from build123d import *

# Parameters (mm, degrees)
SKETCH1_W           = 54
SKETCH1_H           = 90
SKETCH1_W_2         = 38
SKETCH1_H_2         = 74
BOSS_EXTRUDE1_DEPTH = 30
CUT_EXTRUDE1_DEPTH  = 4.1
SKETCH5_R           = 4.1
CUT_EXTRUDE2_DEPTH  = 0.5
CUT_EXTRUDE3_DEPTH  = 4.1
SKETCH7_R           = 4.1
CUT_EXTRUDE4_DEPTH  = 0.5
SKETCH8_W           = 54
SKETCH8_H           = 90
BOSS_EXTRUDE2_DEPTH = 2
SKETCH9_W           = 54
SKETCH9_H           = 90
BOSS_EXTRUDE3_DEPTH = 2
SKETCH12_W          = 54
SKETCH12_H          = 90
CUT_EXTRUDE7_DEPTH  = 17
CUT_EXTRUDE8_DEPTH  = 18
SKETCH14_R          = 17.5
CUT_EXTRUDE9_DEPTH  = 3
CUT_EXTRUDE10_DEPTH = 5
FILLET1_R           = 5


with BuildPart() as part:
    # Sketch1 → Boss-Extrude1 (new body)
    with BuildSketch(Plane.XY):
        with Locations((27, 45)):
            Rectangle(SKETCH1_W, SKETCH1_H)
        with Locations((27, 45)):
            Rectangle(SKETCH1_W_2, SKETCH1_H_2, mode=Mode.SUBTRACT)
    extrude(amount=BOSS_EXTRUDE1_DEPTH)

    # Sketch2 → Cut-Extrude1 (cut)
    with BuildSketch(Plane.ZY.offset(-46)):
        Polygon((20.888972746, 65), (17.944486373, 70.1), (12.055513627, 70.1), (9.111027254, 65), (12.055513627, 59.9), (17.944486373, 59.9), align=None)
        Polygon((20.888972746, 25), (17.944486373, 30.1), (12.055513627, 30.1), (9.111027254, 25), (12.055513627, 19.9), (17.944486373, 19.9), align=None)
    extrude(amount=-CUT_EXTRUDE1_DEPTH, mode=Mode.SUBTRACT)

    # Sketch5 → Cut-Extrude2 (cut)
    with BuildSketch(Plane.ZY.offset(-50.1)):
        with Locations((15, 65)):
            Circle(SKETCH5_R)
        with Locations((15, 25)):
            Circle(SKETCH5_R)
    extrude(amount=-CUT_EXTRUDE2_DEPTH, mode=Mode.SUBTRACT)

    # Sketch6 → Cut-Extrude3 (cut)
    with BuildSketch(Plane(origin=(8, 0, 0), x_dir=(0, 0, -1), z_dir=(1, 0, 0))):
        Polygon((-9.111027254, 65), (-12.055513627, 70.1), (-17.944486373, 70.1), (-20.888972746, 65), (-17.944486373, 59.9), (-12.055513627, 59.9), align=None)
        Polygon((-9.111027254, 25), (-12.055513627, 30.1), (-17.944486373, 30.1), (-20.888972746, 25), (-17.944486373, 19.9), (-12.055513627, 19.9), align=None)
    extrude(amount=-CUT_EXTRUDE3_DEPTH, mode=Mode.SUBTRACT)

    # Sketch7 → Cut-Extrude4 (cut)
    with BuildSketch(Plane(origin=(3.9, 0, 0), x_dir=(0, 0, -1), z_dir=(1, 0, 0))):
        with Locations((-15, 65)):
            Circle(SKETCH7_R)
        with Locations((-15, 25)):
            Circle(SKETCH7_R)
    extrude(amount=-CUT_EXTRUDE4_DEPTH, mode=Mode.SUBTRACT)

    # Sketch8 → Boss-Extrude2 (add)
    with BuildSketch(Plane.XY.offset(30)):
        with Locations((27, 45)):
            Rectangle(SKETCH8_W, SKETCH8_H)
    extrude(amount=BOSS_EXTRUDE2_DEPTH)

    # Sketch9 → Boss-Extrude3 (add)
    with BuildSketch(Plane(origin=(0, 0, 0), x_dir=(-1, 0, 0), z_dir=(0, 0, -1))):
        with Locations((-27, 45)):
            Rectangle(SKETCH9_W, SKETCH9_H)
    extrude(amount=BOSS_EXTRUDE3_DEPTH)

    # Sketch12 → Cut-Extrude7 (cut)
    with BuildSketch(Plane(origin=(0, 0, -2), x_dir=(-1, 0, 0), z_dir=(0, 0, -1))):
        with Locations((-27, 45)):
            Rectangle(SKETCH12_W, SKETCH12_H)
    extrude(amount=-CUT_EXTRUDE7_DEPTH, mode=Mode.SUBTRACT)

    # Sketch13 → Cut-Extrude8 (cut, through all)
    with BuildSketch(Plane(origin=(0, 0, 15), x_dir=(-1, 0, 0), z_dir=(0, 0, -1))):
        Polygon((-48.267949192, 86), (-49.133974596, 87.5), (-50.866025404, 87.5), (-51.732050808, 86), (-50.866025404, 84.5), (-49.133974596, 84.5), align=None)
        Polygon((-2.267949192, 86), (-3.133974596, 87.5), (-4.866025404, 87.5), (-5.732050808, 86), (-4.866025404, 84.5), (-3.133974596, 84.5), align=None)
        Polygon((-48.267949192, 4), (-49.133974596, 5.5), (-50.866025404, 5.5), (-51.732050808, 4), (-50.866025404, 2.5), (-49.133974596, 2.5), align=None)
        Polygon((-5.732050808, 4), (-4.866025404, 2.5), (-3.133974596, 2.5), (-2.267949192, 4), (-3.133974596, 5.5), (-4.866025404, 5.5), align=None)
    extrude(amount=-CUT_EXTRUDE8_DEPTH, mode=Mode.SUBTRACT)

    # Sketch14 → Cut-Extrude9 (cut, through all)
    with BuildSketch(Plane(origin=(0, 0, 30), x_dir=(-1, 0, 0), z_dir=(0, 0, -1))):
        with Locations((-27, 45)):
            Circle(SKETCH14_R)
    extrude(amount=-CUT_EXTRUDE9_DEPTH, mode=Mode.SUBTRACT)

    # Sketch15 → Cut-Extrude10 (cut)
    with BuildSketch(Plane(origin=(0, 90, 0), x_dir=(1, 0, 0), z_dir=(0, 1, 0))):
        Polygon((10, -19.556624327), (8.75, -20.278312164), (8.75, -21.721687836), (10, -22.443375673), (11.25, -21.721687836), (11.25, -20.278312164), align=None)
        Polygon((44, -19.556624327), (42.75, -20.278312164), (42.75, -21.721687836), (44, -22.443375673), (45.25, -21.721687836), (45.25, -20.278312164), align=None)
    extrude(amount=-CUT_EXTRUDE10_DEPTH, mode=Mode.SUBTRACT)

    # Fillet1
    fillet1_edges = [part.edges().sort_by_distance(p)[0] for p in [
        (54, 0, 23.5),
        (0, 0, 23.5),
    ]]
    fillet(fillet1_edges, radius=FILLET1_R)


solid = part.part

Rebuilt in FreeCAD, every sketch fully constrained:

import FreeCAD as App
import Part
import Sketcher
from FreeCAD import Vector
Q = App.Units.Quantity


def edges_at(feature, points):
    """Names of the edges that pass closest to the given points."""
    edges = feature.Shape.Edges
    near = lambda p: min(range(len(edges)), key=lambda i: edges[i].distToShape(Part.Vertex(*p))[0])
    return sorted({f"Edge{near(p) + 1}" for p in points})

doc = App.newDocument("Part")
params = doc.addObject("Spreadsheet::Sheet", "Params")
for row, (alias, value) in enumerate([
    ("sketch1_width", "54 mm"),
    ("sketch1_width2", "38 mm"),
    ("sketch1_height", "90 mm"),
    ("sketch1_height2", "74 mm"),
    ("pad1_length", "30 mm"),
    ("pocket1_length", "4.1 mm"),
    ("sketch3_diameter", "8.2 mm"),
    ("pocket2_length", "0.5 mm"),
    ("pocket3_length", "4.1 mm"),
    ("sketch5_diameter", "8.2 mm"),
    ("pocket4_length", "0.5 mm"),
    ("sketch6_width", "54 mm"),
    ("sketch6_height", "90 mm"),
    ("pad2_length", "2 mm"),
    ("sketch7_width", "54 mm"),
    ("sketch7_height", "90 mm"),
    ("pad3_length", "2 mm"),
    ("sketch8_width", "54 mm"),
    ("sketch8_height", "90 mm"),
    ("pocket5_length", "17 mm"),
    ("sketch10_diameter", "35 mm"),
    ("pocket8_length", "5 mm"),
    ("fillet_radius", "5 mm"),
], start=1):
    params.set(f"A{row}", alias)
    params.set(f"B{row}", "=" + value)
    params.setAlias(f"B{row}", alias)

body = doc.addObject("PartDesign::Body", "Body")

# Sketch on XY plane
sketch1 = body.newObject("Sketcher::SketchObject", "Sketch")
sketch1.AttachmentSupport = (doc.getObject("XY_Plane"), [""])
sketch1.MapMode = "FlatFace"
sketch1.addGeometry(Part.LineSegment(Vector(0, 90, 0), Vector(0, 0, 0)), False)
sketch1.addGeometry(Part.LineSegment(Vector(0, 0, 0), Vector(54, 0, 0)), False)
sketch1.addGeometry(Part.LineSegment(Vector(54, 0, 0), Vector(54, 90, 0)), False)
sketch1.addGeometry(Part.LineSegment(Vector(54, 90, 0), Vector(0, 90, 0)), False)
sketch1.addGeometry(Part.LineSegment(Vector(46, 8, 0), Vector(8, 8, 0)), False)
sketch1.addGeometry(Part.LineSegment(Vector(8, 8, 0), Vector(8, 82, 0)), False)
sketch1.addGeometry(Part.LineSegment(Vector(8, 82, 0), Vector(46, 82, 0)), False)
sketch1.addGeometry(Part.LineSegment(Vector(46, 82, 0), Vector(46, 8, 0)), False)
sketch1.addConstraint(Sketcher.Constraint("Coincident", 0, 2, 1, 1))
sketch1.addConstraint(Sketcher.Constraint("Coincident", 1, 2, 2, 1))
sketch1.addConstraint(Sketcher.Constraint("Coincident", 2, 2, 3, 1))
sketch1.addConstraint(Sketcher.Constraint("Coincident", 3, 2, 0, 1))
sketch1.addConstraint(Sketcher.Constraint("Coincident", 4, 2, 5, 1))
sketch1.addConstraint(Sketcher.Constraint("Coincident", 5, 2, 6, 1))
sketch1.addConstraint(Sketcher.Constraint("Coincident", 6, 2, 7, 1))
sketch1.addConstraint(Sketcher.Constraint("Coincident", 7, 2, 4, 1))
sketch1.addConstraint(Sketcher.Constraint("Vertical", 0))
sketch1.addConstraint(Sketcher.Constraint("Horizontal", 1))
sketch1.addConstraint(Sketcher.Constraint("Vertical", 2))
sketch1.addConstraint(Sketcher.Constraint("Horizontal", 3))
sketch1.addConstraint(Sketcher.Constraint("Horizontal", 4))
sketch1.addConstraint(Sketcher.Constraint("Vertical", 5))
sketch1.addConstraint(Sketcher.Constraint("Horizontal", 6))
sketch1.addConstraint(Sketcher.Constraint("Vertical", 7))
sketch1.addConstraint(Sketcher.Constraint("Coincident", 0, 2, -1, 1))
sketch1.addConstraint(Sketcher.Constraint("DistanceX", 1, 1, 1, 2, Q("54 mm")))
sketch1.addConstraint(Sketcher.Constraint("DistanceX", 4, 2, 4, 1, Q("38 mm")))
sketch1.addConstraint(Sketcher.Constraint("DistanceY", 0, 2, 0, 1, Q("90 mm")))
sketch1.addConstraint(Sketcher.Constraint("DistanceY", 5, 1, 5, 2, Q("74 mm")))
sketch1.addConstraint(Sketcher.Constraint("DistanceX", -1, 1, 4, 2, Q("8 mm")))
sketch1.addConstraint(Sketcher.Constraint("DistanceY", -1, 1, 4, 2, Q("8 mm")))
sketch1.setExpression("Constraints[17]", "Params.sketch1_width")
sketch1.setExpression("Constraints[18]", "Params.sketch1_width2")
sketch1.setExpression("Constraints[19]", "Params.sketch1_height")
sketch1.setExpression("Constraints[20]", "Params.sketch1_height2")
pad1 = body.newObject("PartDesign::Pad", "Pad")
pad1.Profile = sketch1
pad1.setExpression("Length", "Params.pad1_length")

# Sketch on YZ plane
sketch2 = body.newObject("Sketcher::SketchObject", "Sketch001")
sketch2.AttachmentSupport = (doc.getObject("YZ_Plane"), [""])
sketch2.MapMode = "FlatFace"
sketch2.AttachmentOffset = App.Placement(Vector(0, 0, 46), App.Rotation())
sketch2.addGeometry(Part.LineSegment(Vector(65, 21, 0), Vector(70, 18, 0)), False)
sketch2.addGeometry(Part.LineSegment(Vector(70, 18, 0), Vector(70, 12, 0)), False)
sketch2.addGeometry(Part.LineSegment(Vector(70, 12, 0), Vector(65, 9, 0)), False)
sketch2.addGeometry(Part.LineSegment(Vector(65, 9, 0), Vector(60, 12, 0)), False)
sketch2.addGeometry(Part.LineSegment(Vector(60, 12, 0), Vector(60, 18, 0)), False)
sketch2.addGeometry(Part.LineSegment(Vector(60, 18, 0), Vector(65, 21, 0)), False)
sketch2.addGeometry(Part.LineSegment(Vector(25, 21, 0), Vector(30, 18, 0)), False)
sketch2.addGeometry(Part.LineSegment(Vector(30, 18, 0), Vector(30, 12, 0)), False)
sketch2.addGeometry(Part.LineSegment(Vector(30, 12, 0), Vector(25, 9, 0)), False)
sketch2.addGeometry(Part.LineSegment(Vector(25, 9, 0), Vector(20, 12, 0)), False)
sketch2.addGeometry(Part.LineSegment(Vector(20, 12, 0), Vector(20, 18, 0)), False)
sketch2.addGeometry(Part.LineSegment(Vector(20, 18, 0), Vector(25, 21, 0)), False)
sketch2.addConstraint(Sketcher.Constraint("Coincident", 0, 2, 1, 1))
sketch2.addConstraint(Sketcher.Constraint("Coincident", 1, 2, 2, 1))
sketch2.addConstraint(Sketcher.Constraint("Coincident", 2, 2, 3, 1))
sketch2.addConstraint(Sketcher.Constraint("Coincident", 3, 2, 4, 1))
sketch2.addConstraint(Sketcher.Constraint("Coincident", 4, 2, 5, 1))
sketch2.addConstraint(Sketcher.Constraint("Coincident", 5, 2, 0, 1))
sketch2.addConstraint(Sketcher.Constraint("Coincident", 6, 2, 7, 1))
sketch2.addConstraint(Sketcher.Constraint("Coincident", 7, 2, 8, 1))
sketch2.addConstraint(Sketcher.Constraint("Coincident", 8, 2, 9, 1))
sketch2.addConstraint(Sketcher.Constraint("Coincident", 9, 2, 10, 1))
sketch2.addConstraint(Sketcher.Constraint("Coincident", 10, 2, 11, 1))
sketch2.addConstraint(Sketcher.Constraint("Coincident", 11, 2, 6, 1))
sketch2.addConstraint(Sketcher.Constraint("Vertical", 1))
sketch2.addConstraint(Sketcher.Constraint("Vertical", 4))
sketch2.addConstraint(Sketcher.Constraint("Vertical", 7))
sketch2.addConstraint(Sketcher.Constraint("Vertical", 10))
sketch2.addConstraint(Sketcher.Constraint("Parallel", 0, 3))
sketch2.addConstraint(Sketcher.Constraint("Parallel", 2, 5))
sketch2.addConstraint(Sketcher.Constraint("Parallel", 3, 6))
sketch2.addConstraint(Sketcher.Constraint("Parallel", 5, 8))
sketch2.addConstraint(Sketcher.Constraint("Parallel", 6, 9))
sketch2.addConstraint(Sketcher.Constraint("Parallel", 8, 11))
sketch2.addConstraint(Sketcher.Constraint("Horizontal", 1, 2, 3, 2))
sketch2.addConstraint(Sketcher.Constraint("Horizontal", 0, 2, 4, 2))
sketch2.addConstraint(Sketcher.Constraint("Horizontal", 4, 2, 6, 2))
sketch2.addConstraint(Sketcher.Constraint("Horizontal", 3, 2, 7, 2))
sketch2.addConstraint(Sketcher.Constraint("Horizontal", 2, 2, 8, 2))
sketch2.addConstraint(Sketcher.Constraint("Horizontal", 7, 2, 9, 2))
sketch2.addConstraint(Sketcher.Constraint("Horizontal", 6, 2, 10, 2))
sketch2.addConstraint(Sketcher.Constraint("Vertical", 2, 2, 5, 2))
sketch2.addConstraint(Sketcher.Constraint("Angle", 0, Q("-30 deg")))
sketch2.addConstraint(Sketcher.Constraint("DistanceX", -1, 1, 2, 2, Q("65 mm")))
sketch2.addConstraint(Sketcher.Constraint("DistanceX", -1, 1, 8, 2, Q("25 mm")))
sketch2.addConstraint(Sketcher.Constraint("DistanceX", -1, 1, 0, 2, Q("70.1 mm")))
sketch2.addConstraint(Sketcher.Constraint("DistanceY", 1, 2, 1, 1, Q("5.888973 mm")))
sketch2.addConstraint(Sketcher.Constraint("DistanceY", -1, 1, 0, 2, Q("17.944486 mm")))
pocket1 = body.newObject("PartDesign::Pocket", "Pocket")
pocket1.Profile = sketch2
pocket1.setExpression("Length", "Params.pocket1_length")
pocket1.Reversed = True

# Sketch on YZ plane
sketch3 = body.newObject("Sketcher::SketchObject", "Sketch002")
sketch3.AttachmentSupport = (doc.getObject("YZ_Plane"), [""])
sketch3.MapMode = "FlatFace"
sketch3.AttachmentOffset = App.Placement(Vector(0, 0, 50.1), App.Rotation())
sketch3.addGeometry(Part.Circle(Vector(65, 15, 0), Vector(0, 0, 1), 4.1), False)
sketch3.addGeometry(Part.Circle(Vector(25, 15, 0), Vector(0, 0, 1), 4.1), False)
sketch3.addConstraint(Sketcher.Constraint("Equal", 0, 1))
sketch3.addConstraint(Sketcher.Constraint("Horizontal", 0, 3, 1, 3))
sketch3.addConstraint(Sketcher.Constraint("Diameter", 0, Q("8.2 mm")))
sketch3.addConstraint(Sketcher.Constraint("DistanceX", -1, 1, 0, 3, Q("65 mm")))
sketch3.addConstraint(Sketcher.Constraint("DistanceY", -1, 1, 0, 3, Q("15 mm")))
sketch3.addConstraint(Sketcher.Constraint("DistanceX", -1, 1, 1, 3, Q("25 mm")))
sketch3.setExpression("Constraints[2]", "Params.sketch3_diameter")
pocket2 = body.newObject("PartDesign::Pocket", "Pocket001")
pocket2.Profile = sketch3
pocket2.setExpression("Length", "Params.pocket2_length")
pocket2.Reversed = True

# Sketch on YZ plane
sketch4 = body.newObject("Sketcher::SketchObject", "Sketch003")
sketch4.AttachmentSupport = (doc.getObject("YZ_Plane"), [""])
sketch4.MapMode = "FlatFace"
sketch4.AttachmentOffset = App.Placement(Vector(0, 0, 8), App.Rotation())
sketch4.addGeometry(Part.LineSegment(Vector(65, 9, 0), Vector(70, 12, 0)), False)
sketch4.addGeometry(Part.LineSegment(Vector(70, 12, 0), Vector(70, 18, 0)), False)
sketch4.addGeometry(Part.LineSegment(Vector(70, 18, 0), Vector(65, 21, 0)), False)
sketch4.addGeometry(Part.LineSegment(Vector(65, 21, 0), Vector(60, 18, 0)), False)
sketch4.addGeometry(Part.LineSegment(Vector(60, 18, 0), Vector(60, 12, 0)), False)
sketch4.addGeometry(Part.LineSegment(Vector(60, 12, 0), Vector(65, 9, 0)), False)
sketch4.addGeometry(Part.LineSegment(Vector(25, 9, 0), Vector(30, 12, 0)), False)
sketch4.addGeometry(Part.LineSegment(Vector(30, 12, 0), Vector(30, 18, 0)), False)
sketch4.addGeometry(Part.LineSegment(Vector(30, 18, 0), Vector(25, 21, 0)), False)
sketch4.addGeometry(Part.LineSegment(Vector(25, 21, 0), Vector(20, 18, 0)), False)
sketch4.addGeometry(Part.LineSegment(Vector(20, 18, 0), Vector(20, 12, 0)), False)
sketch4.addGeometry(Part.LineSegment(Vector(20, 12, 0), Vector(25, 9, 0)), False)
sketch4.addConstraint(Sketcher.Constraint("Coincident", 0, 2, 1, 1))
sketch4.addConstraint(Sketcher.Constraint("Coincident", 1, 2, 2, 1))
sketch4.addConstraint(Sketcher.Constraint("Coincident", 2, 2, 3, 1))
sketch4.addConstraint(Sketcher.Constraint("Coincident", 3, 2, 4, 1))
sketch4.addConstraint(Sketcher.Constraint("Coincident", 4, 2, 5, 1))
sketch4.addConstraint(Sketcher.Constraint("Coincident", 5, 2, 0, 1))
sketch4.addConstraint(Sketcher.Constraint("Coincident", 6, 2, 7, 1))
sketch4.addConstraint(Sketcher.Constraint("Coincident", 7, 2, 8, 1))
sketch4.addConstraint(Sketcher.Constraint("Coincident", 8, 2, 9, 1))
sketch4.addConstraint(Sketcher.Constraint("Coincident", 9, 2, 10, 1))
sketch4.addConstraint(Sketcher.Constraint("Coincident", 10, 2, 11, 1))
sketch4.addConstraint(Sketcher.Constraint("Coincident", 11, 2, 6, 1))
sketch4.addConstraint(Sketcher.Constraint("Vertical", 1))
sketch4.addConstraint(Sketcher.Constraint("Vertical", 4))
sketch4.addConstraint(Sketcher.Constraint("Vertical", 7))
sketch4.addConstraint(Sketcher.Constraint("Vertical", 10))
sketch4.addConstraint(Sketcher.Constraint("Parallel", 0, 3))
sketch4.addConstraint(Sketcher.Constraint("Parallel", 2, 5))
sketch4.addConstraint(Sketcher.Constraint("Parallel", 3, 6))
sketch4.addConstraint(Sketcher.Constraint("Parallel", 5, 8))
sketch4.addConstraint(Sketcher.Constraint("Parallel", 6, 9))
sketch4.addConstraint(Sketcher.Constraint("Parallel", 8, 11))
sketch4.addConstraint(Sketcher.Constraint("Horizontal", 1, 2, 3, 2))
sketch4.addConstraint(Sketcher.Constraint("Horizontal", 0, 2, 4, 2))
sketch4.addConstraint(Sketcher.Constraint("Horizontal", 4, 2, 6, 2))
sketch4.addConstraint(Sketcher.Constraint("Horizontal", 3, 2, 7, 2))
sketch4.addConstraint(Sketcher.Constraint("Horizontal", 2, 2, 8, 2))
sketch4.addConstraint(Sketcher.Constraint("Horizontal", 7, 2, 9, 2))
sketch4.addConstraint(Sketcher.Constraint("Horizontal", 6, 2, 10, 2))
sketch4.addConstraint(Sketcher.Constraint("Vertical", 2, 2, 5, 2))
sketch4.addConstraint(Sketcher.Constraint("Angle", 0, Q("30 deg")))
sketch4.addConstraint(Sketcher.Constraint("DistanceX", -1, 1, 2, 2, Q("65 mm")))
sketch4.addConstraint(Sketcher.Constraint("DistanceX", -1, 1, 8, 2, Q("25 mm")))
sketch4.addConstraint(Sketcher.Constraint("DistanceX", -1, 1, 0, 2, Q("70.1 mm")))
sketch4.addConstraint(Sketcher.Constraint("DistanceY", 1, 1, 1, 2, Q("5.888973 mm")))
sketch4.addConstraint(Sketcher.Constraint("DistanceY", -1, 1, 0, 2, Q("12.055514 mm")))
pocket3 = body.newObject("PartDesign::Pocket", "Pocket002")
pocket3.Profile = sketch4
pocket3.setExpression("Length", "Params.pocket3_length")

# Sketch on YZ plane
sketch5 = body.newObject("Sketcher::SketchObject", "Sketch004")
sketch5.AttachmentSupport = (doc.getObject("YZ_Plane"), [""])
sketch5.MapMode = "FlatFace"
sketch5.AttachmentOffset = App.Placement(Vector(0, 0, 3.9), App.Rotation())
sketch5.addGeometry(Part.Circle(Vector(65, 15, 0), Vector(0, 0, 1), 4.1), False)
sketch5.addGeometry(Part.Circle(Vector(25, 15, 0), Vector(0, 0, 1), 4.1), False)
sketch5.addConstraint(Sketcher.Constraint("Equal", 0, 1))
sketch5.addConstraint(Sketcher.Constraint("Horizontal", 0, 3, 1, 3))
sketch5.addConstraint(Sketcher.Constraint("Diameter", 0, Q("8.2 mm")))
sketch5.addConstraint(Sketcher.Constraint("DistanceX", -1, 1, 0, 3, Q("65 mm")))
sketch5.addConstraint(Sketcher.Constraint("DistanceY", -1, 1, 0, 3, Q("15 mm")))
sketch5.addConstraint(Sketcher.Constraint("DistanceX", -1, 1, 1, 3, Q("25 mm")))
sketch5.setExpression("Constraints[2]", "Params.sketch5_diameter")
pocket4 = body.newObject("PartDesign::Pocket", "Pocket003")
pocket4.Profile = sketch5
pocket4.setExpression("Length", "Params.pocket4_length")

# Sketch on XY plane
sketch6 = body.newObject("Sketcher::SketchObject", "Sketch005")
sketch6.AttachmentSupport = (doc.getObject("XY_Plane"), [""])
sketch6.MapMode = "FlatFace"
sketch6.AttachmentOffset = App.Placement(Vector(0, 0, 30), App.Rotation())
sketch6.addGeometry(Part.LineSegment(Vector(0, 90, 0), Vector(0, 0, 0)), False)
sketch6.addGeometry(Part.LineSegment(Vector(0, 0, 0), Vector(54, 0, 0)), False)
sketch6.addGeometry(Part.LineSegment(Vector(54, 0, 0), Vector(54, 90, 0)), False)
sketch6.addGeometry(Part.LineSegment(Vector(54, 90, 0), Vector(0, 90, 0)), False)
sketch6.addConstraint(Sketcher.Constraint("Coincident", 0, 2, 1, 1))
sketch6.addConstraint(Sketcher.Constraint("Coincident", 1, 2, 2, 1))
sketch6.addConstraint(Sketcher.Constraint("Coincident", 2, 2, 3, 1))
sketch6.addConstraint(Sketcher.Constraint("Coincident", 3, 2, 0, 1))
sketch6.addConstraint(Sketcher.Constraint("Vertical", 0))
sketch6.addConstraint(Sketcher.Constraint("Horizontal", 1))
sketch6.addConstraint(Sketcher.Constraint("Vertical", 2))
sketch6.addConstraint(Sketcher.Constraint("Horizontal", 3))
sketch6.addConstraint(Sketcher.Constraint("Coincident", 0, 2, -1, 1))
sketch6.addConstraint(Sketcher.Constraint("DistanceX", 1, 1, 1, 2, Q("54 mm")))
sketch6.addConstraint(Sketcher.Constraint("DistanceY", 0, 2, 0, 1, Q("90 mm")))
sketch6.setExpression("Constraints[9]", "Params.sketch6_width")
sketch6.setExpression("Constraints[10]", "Params.sketch6_height")
pad2 = body.newObject("PartDesign::Pad", "Pad001")
pad2.Profile = sketch6
pad2.setExpression("Length", "Params.pad2_length")

# Sketch on XY plane
sketch7 = body.newObject("Sketcher::SketchObject", "Sketch006")
sketch7.AttachmentSupport = (doc.getObject("XY_Plane"), [""])
sketch7.MapMode = "FlatFace"
sketch7.addGeometry(Part.LineSegment(Vector(54, 90, 0), Vector(54, 0, 0)), False)
sketch7.addGeometry(Part.LineSegment(Vector(54, 0, 0), Vector(0, 0, 0)), False)
sketch7.addGeometry(Part.LineSegment(Vector(0, 0, 0), Vector(0, 90, 0)), False)
sketch7.addGeometry(Part.LineSegment(Vector(0, 90, 0), Vector(54, 90, 0)), False)
sketch7.addConstraint(Sketcher.Constraint("Coincident", 0, 2, 1, 1))
sketch7.addConstraint(Sketcher.Constraint("Coincident", 1, 2, 2, 1))
sketch7.addConstraint(Sketcher.Constraint("Coincident", 2, 2, 3, 1))
sketch7.addConstraint(Sketcher.Constraint("Coincident", 3, 2, 0, 1))
sketch7.addConstraint(Sketcher.Constraint("Vertical", 0))
sketch7.addConstraint(Sketcher.Constraint("Horizontal", 1))
sketch7.addConstraint(Sketcher.Constraint("Vertical", 2))
sketch7.addConstraint(Sketcher.Constraint("Horizontal", 3))
sketch7.addConstraint(Sketcher.Constraint("Coincident", 1, 2, -1, 1))
sketch7.addConstraint(Sketcher.Constraint("DistanceX", 1, 2, 1, 1, Q("54 mm")))
sketch7.addConstraint(Sketcher.Constraint("DistanceY", 0, 2, 0, 1, Q("90 mm")))
sketch7.setExpression("Constraints[9]", "Params.sketch7_width")
sketch7.setExpression("Constraints[10]", "Params.sketch7_height")
pad3 = body.newObject("PartDesign::Pad", "Pad002")
pad3.Profile = sketch7
pad3.setExpression("Length", "Params.pad3_length")
pad3.Reversed = True

# Sketch on XY plane
sketch8 = body.newObject("Sketcher::SketchObject", "Sketch007")
sketch8.AttachmentSupport = (doc.getObject("XY_Plane"), [""])
sketch8.MapMode = "FlatFace"
sketch8.AttachmentOffset = App.Placement(Vector(0, 0, -2), App.Rotation())
sketch8.addGeometry(Part.LineSegment(Vector(54, 90, 0), Vector(54, 0, 0)), False)
sketch8.addGeometry(Part.LineSegment(Vector(54, 0, 0), Vector(0, 0, 0)), False)
sketch8.addGeometry(Part.LineSegment(Vector(0, 0, 0), Vector(0, 90, 0)), False)
sketch8.addGeometry(Part.LineSegment(Vector(0, 90, 0), Vector(54, 90, 0)), False)
sketch8.addConstraint(Sketcher.Constraint("Coincident", 0, 2, 1, 1))
sketch8.addConstraint(Sketcher.Constraint("Coincident", 1, 2, 2, 1))
sketch8.addConstraint(Sketcher.Constraint("Coincident", 2, 2, 3, 1))
sketch8.addConstraint(Sketcher.Constraint("Coincident", 3, 2, 0, 1))
sketch8.addConstraint(Sketcher.Constraint("Vertical", 0))
sketch8.addConstraint(Sketcher.Constraint("Horizontal", 1))
sketch8.addConstraint(Sketcher.Constraint("Vertical", 2))
sketch8.addConstraint(Sketcher.Constraint("Horizontal", 3))
sketch8.addConstraint(Sketcher.Constraint("Coincident", 1, 2, -1, 1))
sketch8.addConstraint(Sketcher.Constraint("DistanceX", 1, 2, 1, 1, Q("54 mm")))
sketch8.addConstraint(Sketcher.Constraint("DistanceY", 0, 2, 0, 1, Q("90 mm")))
sketch8.setExpression("Constraints[9]", "Params.sketch8_width")
sketch8.setExpression("Constraints[10]", "Params.sketch8_height")
pocket5 = body.newObject("PartDesign::Pocket", "Pocket004")
pocket5.Profile = sketch8
pocket5.setExpression("Length", "Params.pocket5_length")
pocket5.Reversed = True

# Sketch on XY plane
sketch9 = body.newObject("Sketcher::SketchObject", "Sketch008")
sketch9.AttachmentSupport = (doc.getObject("XY_Plane"), [""])
sketch9.MapMode = "FlatFace"
sketch9.AttachmentOffset = App.Placement(Vector(0, 0, 15), App.Rotation())
sketch9.addGeometry(Part.LineSegment(Vector(48.3, 86, 0), Vector(49.1, 87.5, 0)), False)
sketch9.addGeometry(Part.LineSegment(Vector(49.1, 87.5, 0), Vector(50.9, 87.5, 0)), False)
sketch9.addGeometry(Part.LineSegment(Vector(50.9, 87.5, 0), Vector(51.7, 86, 0)), False)
sketch9.addGeometry(Part.LineSegment(Vector(51.7, 86, 0), Vector(50.9, 84.5, 0)), False)
sketch9.addGeometry(Part.LineSegment(Vector(50.9, 84.5, 0), Vector(49.1, 84.5, 0)), False)
sketch9.addGeometry(Part.LineSegment(Vector(49.1, 84.5, 0), Vector(48.3, 86, 0)), False)
sketch9.addGeometry(Part.LineSegment(Vector(2.3, 86, 0), Vector(3.1, 87.5, 0)), False)
sketch9.addGeometry(Part.LineSegment(Vector(3.1, 87.5, 0), Vector(4.9, 87.5, 0)), False)
sketch9.addGeometry(Part.LineSegment(Vector(4.9, 87.5, 0), Vector(5.7, 86, 0)), False)
sketch9.addGeometry(Part.LineSegment(Vector(5.7, 86, 0), Vector(4.9, 84.5, 0)), False)
sketch9.addGeometry(Part.LineSegment(Vector(4.9, 84.5, 0), Vector(3.1, 84.5, 0)), False)
sketch9.addGeometry(Part.LineSegment(Vector(3.1, 84.5, 0), Vector(2.3, 86, 0)), False)
sketch9.addGeometry(Part.LineSegment(Vector(48.3, 4, 0), Vector(49.1, 5.5, 0)), False)
sketch9.addGeometry(Part.LineSegment(Vector(49.1, 5.5, 0), Vector(50.9, 5.5, 0)), False)
sketch9.addGeometry(Part.LineSegment(Vector(50.9, 5.5, 0), Vector(51.7, 4, 0)), False)
sketch9.addGeometry(Part.LineSegment(Vector(51.7, 4, 0), Vector(50.9, 2.5, 0)), False)
sketch9.addGeometry(Part.LineSegment(Vector(50.9, 2.5, 0), Vector(49.1, 2.5, 0)), False)
sketch9.addGeometry(Part.LineSegment(Vector(49.1, 2.5, 0), Vector(48.3, 4, 0)), False)
sketch9.addGeometry(Part.LineSegment(Vector(5.7, 4, 0), Vector(4.9, 2.5, 0)), False)
sketch9.addGeometry(Part.LineSegment(Vector(4.9, 2.5, 0), Vector(3.1, 2.5, 0)), False)
sketch9.addGeometry(Part.LineSegment(Vector(3.1, 2.5, 0), Vector(2.3, 4, 0)), False)
sketch9.addGeometry(Part.LineSegment(Vector(2.3, 4, 0), Vector(3.1, 5.5, 0)), False)
sketch9.addGeometry(Part.LineSegment(Vector(3.1, 5.5, 0), Vector(4.9, 5.5, 0)), False)
sketch9.addGeometry(Part.LineSegment(Vector(4.9, 5.5, 0), Vector(5.7, 4, 0)), False)
sketch9.addConstraint(Sketcher.Constraint("Coincident", 0, 2, 1, 1))
sketch9.addConstraint(Sketcher.Constraint("Coincident", 1, 2, 2, 1))
sketch9.addConstraint(Sketcher.Constraint("Coincident", 2, 2, 3, 1))
sketch9.addConstraint(Sketcher.Constraint("Coincident", 3, 2, 4, 1))
sketch9.addConstraint(Sketcher.Constraint("Coincident", 4, 2, 5, 1))
sketch9.addConstraint(Sketcher.Constraint("Coincident", 5, 2, 0, 1))
sketch9.addConstraint(Sketcher.Constraint("Coincident", 6, 2, 7, 1))
sketch9.addConstraint(Sketcher.Constraint("Coincident", 7, 2, 8, 1))
sketch9.addConstraint(Sketcher.Constraint("Coincident", 8, 2, 9, 1))
sketch9.addConstraint(Sketcher.Constraint("Coincident", 9, 2, 10, 1))
sketch9.addConstraint(Sketcher.Constraint("Coincident", 10, 2, 11, 1))
sketch9.addConstraint(Sketcher.Constraint("Coincident", 11, 2, 6, 1))
sketch9.addConstraint(Sketcher.Constraint("Coincident", 12, 2, 13, 1))
sketch9.addConstraint(Sketcher.Constraint("Coincident", 13, 2, 14, 1))
sketch9.addConstraint(Sketcher.Constraint("Coincident", 14, 2, 15, 1))
sketch9.addConstraint(Sketcher.Constraint("Coincident", 15, 2, 16, 1))
sketch9.addConstraint(Sketcher.Constraint("Coincident", 16, 2, 17, 1))
sketch9.addConstraint(Sketcher.Constraint("Coincident", 17, 2, 12, 1))
sketch9.addConstraint(Sketcher.Constraint("Coincident", 18, 2, 19, 1))
sketch9.addConstraint(Sketcher.Constraint("Coincident", 19, 2, 20, 1))
sketch9.addConstraint(Sketcher.Constraint("Coincident", 20, 2, 21, 1))
sketch9.addConstraint(Sketcher.Constraint("Coincident", 21, 2, 22, 1))
sketch9.addConstraint(Sketcher.Constraint("Coincident", 22, 2, 23, 1))
sketch9.addConstraint(Sketcher.Constraint("Coincident", 23, 2, 18, 1))
sketch9.addConstraint(Sketcher.Constraint("Horizontal", 1))
sketch9.addConstraint(Sketcher.Constraint("Horizontal", 4))
sketch9.addConstraint(Sketcher.Constraint("Horizontal", 7))
sketch9.addConstraint(Sketcher.Constraint("Horizontal", 10))
sketch9.addConstraint(Sketcher.Constraint("Horizontal", 13))
sketch9.addConstraint(Sketcher.Constraint("Horizontal", 16))
sketch9.addConstraint(Sketcher.Constraint("Horizontal", 19))
sketch9.addConstraint(Sketcher.Constraint("Horizontal", 22))
sketch9.addConstraint(Sketcher.Constraint("Parallel", 0, 3))
sketch9.addConstraint(Sketcher.Constraint("Parallel", 2, 5))
sketch9.addConstraint(Sketcher.Constraint("Parallel", 3, 6))
sketch9.addConstraint(Sketcher.Constraint("Parallel", 5, 8))
sketch9.addConstraint(Sketcher.Constraint("Parallel", 6, 9))
sketch9.addConstraint(Sketcher.Constraint("Parallel", 8, 11))
sketch9.addConstraint(Sketcher.Constraint("Parallel", 9, 12))
sketch9.addConstraint(Sketcher.Constraint("Parallel", 11, 14))
sketch9.addConstraint(Sketcher.Constraint("Parallel", 12, 15))
sketch9.addConstraint(Sketcher.Constraint("Parallel", 14, 17))
sketch9.addConstraint(Sketcher.Constraint("Parallel", 15, 18))
sketch9.addConstraint(Sketcher.Constraint("Parallel", 17, 20))
sketch9.addConstraint(Sketcher.Constraint("Parallel", 18, 21))
sketch9.addConstraint(Sketcher.Constraint("Parallel", 20, 23))
sketch9.addConstraint(Sketcher.Constraint("Horizontal", 2, 2, 5, 2))
sketch9.addConstraint(Sketcher.Constraint("Horizontal", 1, 2, 6, 2))
sketch9.addConstraint(Sketcher.Constraint("Horizontal", 5, 2, 8, 2))
sketch9.addConstraint(Sketcher.Constraint("Horizontal", 4, 2, 9, 2))
sketch9.addConstraint(Sketcher.Constraint("Horizontal", 8, 2, 11, 2))
sketch9.addConstraint(Sketcher.Constraint("Horizontal", 14, 2, 17, 2))
sketch9.addConstraint(Sketcher.Constraint("Horizontal", 16, 2, 18, 2))
sketch9.addConstraint(Sketcher.Constraint("Horizontal", 17, 2, 20, 2))
sketch9.addConstraint(Sketcher.Constraint("Horizontal", 13, 2, 21, 2))
sketch9.addConstraint(Sketcher.Constraint("Horizontal", 20, 2, 23, 2))
sketch9.addConstraint(Sketcher.Constraint("Vertical", 1, 2, 3, 2))
sketch9.addConstraint(Sketcher.Constraint("Vertical", 0, 2, 4, 2))
sketch9.addConstraint(Sketcher.Constraint("Vertical", 4, 2, 12, 2))
sketch9.addConstraint(Sketcher.Constraint("Vertical", 3, 2, 13, 2))
sketch9.addConstraint(Sketcher.Constraint("Vertical", 2, 2, 14, 2))
sketch9.addConstraint(Sketcher.Constraint("Vertical", 13, 2, 15, 2))
sketch9.addConstraint(Sketcher.Constraint("Vertical", 9, 2, 18, 2))
sketch9.addConstraint(Sketcher.Constraint("Vertical", 10, 2, 19, 2))
sketch9.addConstraint(Sketcher.Constraint("Equal", 4, 7))
sketch9.addConstraint(Sketcher.Constraint("Angle", 0, Q("60 deg")))
sketch9.addConstraint(Sketcher.Constraint("DistanceY", -1, 1, 2, 2, Q("86 mm")))
sketch9.addConstraint(Sketcher.Constraint("DistanceY", -1, 1, 14, 2, Q("4 mm")))
sketch9.addConstraint(Sketcher.Constraint("DistanceY", 3, 2, 1, 2, Q("3 mm")))
sketch9.addConstraint(Sketcher.Constraint("DistanceX", 6, 2, 0, 2, Q("46 mm")))
sketch9.addConstraint(Sketcher.Constraint("DistanceX", 1, 1, 1, 2, Q("1.732051 mm")))
sketch9.addConstraint(Sketcher.Constraint("DistanceX", -1, 1, 2, 2, Q("51.732051 mm")))
pocket6 = body.newObject("PartDesign::Pocket", "Pocket005")
pocket6.Profile = sketch9
pocket6.Type = "ThroughAll"
pocket6.Reversed = True

# Sketch on XY plane
sketch10 = body.newObject("Sketcher::SketchObject", "Sketch009")
sketch10.AttachmentSupport = (doc.getObject("XY_Plane"), [""])
sketch10.MapMode = "FlatFace"
sketch10.AttachmentOffset = App.Placement(Vector(0, 0, 30), App.Rotation())
sketch10.addGeometry(Part.Circle(Vector(27, 45, 0), Vector(0, 0, 1), 18), False)
sketch10.addConstraint(Sketcher.Constraint("Diameter", 0, Q("35 mm")))
sketch10.addConstraint(Sketcher.Constraint("DistanceX", -1, 1, 0, 3, Q("27 mm")))
sketch10.addConstraint(Sketcher.Constraint("DistanceY", -1, 1, 0, 3, Q("45 mm")))
sketch10.setExpression("Constraints[0]", "Params.sketch10_diameter")
pocket7 = body.newObject("PartDesign::Pocket", "Pocket006")
pocket7.Profile = sketch10
pocket7.Type = "ThroughAll"
pocket7.Reversed = True

# Sketch on XZ plane
sketch11 = body.newObject("Sketcher::SketchObject", "Sketch010")
sketch11.AttachmentSupport = (doc.getObject("XZ_Plane"), [""])
sketch11.MapMode = "FlatFace"
sketch11.AttachmentOffset = App.Placement(Vector(0, 0, -90), App.Rotation())
sketch11.addGeometry(Part.LineSegment(Vector(10, 19.6, 0), Vector(8.8, 20.3, 0)), False)
sketch11.addGeometry(Part.LineSegment(Vector(8.8, 20.3, 0), Vector(8.8, 21.7, 0)), False)
sketch11.addGeometry(Part.LineSegment(Vector(8.8, 21.7, 0), Vector(10, 22.4, 0)), False)
sketch11.addGeometry(Part.LineSegment(Vector(10, 22.4, 0), Vector(11.2, 21.7, 0)), False)
sketch11.addGeometry(Part.LineSegment(Vector(11.2, 21.7, 0), Vector(11.2, 20.3, 0)), False)
sketch11.addGeometry(Part.LineSegment(Vector(11.2, 20.3, 0), Vector(10, 19.6, 0)), False)
sketch11.addGeometry(Part.LineSegment(Vector(44, 19.6, 0), Vector(42.8, 20.3, 0)), False)
sketch11.addGeometry(Part.LineSegment(Vector(42.8, 20.3, 0), Vector(42.8, 21.7, 0)), False)
sketch11.addGeometry(Part.LineSegment(Vector(42.8, 21.7, 0), Vector(44, 22.4, 0)), False)
sketch11.addGeometry(Part.LineSegment(Vector(44, 22.4, 0), Vector(45.2, 21.7, 0)), False)
sketch11.addGeometry(Part.LineSegment(Vector(45.2, 21.7, 0), Vector(45.2, 20.3, 0)), False)
sketch11.addGeometry(Part.LineSegment(Vector(45.2, 20.3, 0), Vector(44, 19.6, 0)), False)
sketch11.addConstraint(Sketcher.Constraint("Coincident", 0, 2, 1, 1))
sketch11.addConstraint(Sketcher.Constraint("Coincident", 1, 2, 2, 1))
sketch11.addConstraint(Sketcher.Constraint("Coincident", 2, 2, 3, 1))
sketch11.addConstraint(Sketcher.Constraint("Coincident", 3, 2, 4, 1))
sketch11.addConstraint(Sketcher.Constraint("Coincident", 4, 2, 5, 1))
sketch11.addConstraint(Sketcher.Constraint("Coincident", 5, 2, 0, 1))
sketch11.addConstraint(Sketcher.Constraint("Coincident", 6, 2, 7, 1))
sketch11.addConstraint(Sketcher.Constraint("Coincident", 7, 2, 8, 1))
sketch11.addConstraint(Sketcher.Constraint("Coincident", 8, 2, 9, 1))
sketch11.addConstraint(Sketcher.Constraint("Coincident", 9, 2, 10, 1))
sketch11.addConstraint(Sketcher.Constraint("Coincident", 10, 2, 11, 1))
sketch11.addConstraint(Sketcher.Constraint("Coincident", 11, 2, 6, 1))
sketch11.addConstraint(Sketcher.Constraint("Vertical", 1))
sketch11.addConstraint(Sketcher.Constraint("Vertical", 4))
sketch11.addConstraint(Sketcher.Constraint("Vertical", 7))
sketch11.addConstraint(Sketcher.Constraint("Vertical", 10))
sketch11.addConstraint(Sketcher.Constraint("Parallel", 0, 3))
sketch11.addConstraint(Sketcher.Constraint("Parallel", 2, 5))
sketch11.addConstraint(Sketcher.Constraint("Parallel", 3, 6))
sketch11.addConstraint(Sketcher.Constraint("Parallel", 5, 8))
sketch11.addConstraint(Sketcher.Constraint("Parallel", 6, 9))
sketch11.addConstraint(Sketcher.Constraint("Parallel", 8, 11))
sketch11.addConstraint(Sketcher.Constraint("Horizontal", 1, 2, 3, 2))
sketch11.addConstraint(Sketcher.Constraint("Horizontal", 0, 2, 4, 2))
sketch11.addConstraint(Sketcher.Constraint("Horizontal", 4, 2, 6, 2))
sketch11.addConstraint(Sketcher.Constraint("Horizontal", 3, 2, 7, 2))
sketch11.addConstraint(Sketcher.Constraint("Horizontal", 2, 2, 8, 2))
sketch11.addConstraint(Sketcher.Constraint("Horizontal", 7, 2, 9, 2))
sketch11.addConstraint(Sketcher.Constraint("Horizontal", 6, 2, 10, 2))
sketch11.addConstraint(Sketcher.Constraint("Vertical", 2, 2, 5, 2))
sketch11.addConstraint(Sketcher.Constraint("Angle", 0, Q("150 deg")))
sketch11.addConstraint(Sketcher.Constraint("DistanceX", -1, 1, 2, 2, Q("10 mm")))
sketch11.addConstraint(Sketcher.Constraint("DistanceX", -1, 1, 8, 2, Q("44 mm")))
sketch11.addConstraint(Sketcher.Constraint("DistanceX", 1, 2, 3, 2, Q("2.5 mm")))
sketch11.addConstraint(Sketcher.Constraint("DistanceY", 1, 1, 1, 2, Q("1.443376 mm")))
sketch11.addConstraint(Sketcher.Constraint("DistanceY", -1, 1, 0, 2, Q("20.278312 mm")))
pocket8 = body.newObject("PartDesign::Pocket", "Pocket007")
pocket8.Profile = sketch11
pocket8.setExpression("Length", "Params.pocket8_length")
pocket8.Reversed = True
doc.recompute()

fillet = body.newObject("PartDesign::Fillet", "Fillet")
fillet.Base = (pocket8, edges_at(pocket8, [(54, 0, 23.5), (0, 0, 23.5)]))
fillet.setExpression("Radius", "Params.fillet_radius")

doc.recompute()
